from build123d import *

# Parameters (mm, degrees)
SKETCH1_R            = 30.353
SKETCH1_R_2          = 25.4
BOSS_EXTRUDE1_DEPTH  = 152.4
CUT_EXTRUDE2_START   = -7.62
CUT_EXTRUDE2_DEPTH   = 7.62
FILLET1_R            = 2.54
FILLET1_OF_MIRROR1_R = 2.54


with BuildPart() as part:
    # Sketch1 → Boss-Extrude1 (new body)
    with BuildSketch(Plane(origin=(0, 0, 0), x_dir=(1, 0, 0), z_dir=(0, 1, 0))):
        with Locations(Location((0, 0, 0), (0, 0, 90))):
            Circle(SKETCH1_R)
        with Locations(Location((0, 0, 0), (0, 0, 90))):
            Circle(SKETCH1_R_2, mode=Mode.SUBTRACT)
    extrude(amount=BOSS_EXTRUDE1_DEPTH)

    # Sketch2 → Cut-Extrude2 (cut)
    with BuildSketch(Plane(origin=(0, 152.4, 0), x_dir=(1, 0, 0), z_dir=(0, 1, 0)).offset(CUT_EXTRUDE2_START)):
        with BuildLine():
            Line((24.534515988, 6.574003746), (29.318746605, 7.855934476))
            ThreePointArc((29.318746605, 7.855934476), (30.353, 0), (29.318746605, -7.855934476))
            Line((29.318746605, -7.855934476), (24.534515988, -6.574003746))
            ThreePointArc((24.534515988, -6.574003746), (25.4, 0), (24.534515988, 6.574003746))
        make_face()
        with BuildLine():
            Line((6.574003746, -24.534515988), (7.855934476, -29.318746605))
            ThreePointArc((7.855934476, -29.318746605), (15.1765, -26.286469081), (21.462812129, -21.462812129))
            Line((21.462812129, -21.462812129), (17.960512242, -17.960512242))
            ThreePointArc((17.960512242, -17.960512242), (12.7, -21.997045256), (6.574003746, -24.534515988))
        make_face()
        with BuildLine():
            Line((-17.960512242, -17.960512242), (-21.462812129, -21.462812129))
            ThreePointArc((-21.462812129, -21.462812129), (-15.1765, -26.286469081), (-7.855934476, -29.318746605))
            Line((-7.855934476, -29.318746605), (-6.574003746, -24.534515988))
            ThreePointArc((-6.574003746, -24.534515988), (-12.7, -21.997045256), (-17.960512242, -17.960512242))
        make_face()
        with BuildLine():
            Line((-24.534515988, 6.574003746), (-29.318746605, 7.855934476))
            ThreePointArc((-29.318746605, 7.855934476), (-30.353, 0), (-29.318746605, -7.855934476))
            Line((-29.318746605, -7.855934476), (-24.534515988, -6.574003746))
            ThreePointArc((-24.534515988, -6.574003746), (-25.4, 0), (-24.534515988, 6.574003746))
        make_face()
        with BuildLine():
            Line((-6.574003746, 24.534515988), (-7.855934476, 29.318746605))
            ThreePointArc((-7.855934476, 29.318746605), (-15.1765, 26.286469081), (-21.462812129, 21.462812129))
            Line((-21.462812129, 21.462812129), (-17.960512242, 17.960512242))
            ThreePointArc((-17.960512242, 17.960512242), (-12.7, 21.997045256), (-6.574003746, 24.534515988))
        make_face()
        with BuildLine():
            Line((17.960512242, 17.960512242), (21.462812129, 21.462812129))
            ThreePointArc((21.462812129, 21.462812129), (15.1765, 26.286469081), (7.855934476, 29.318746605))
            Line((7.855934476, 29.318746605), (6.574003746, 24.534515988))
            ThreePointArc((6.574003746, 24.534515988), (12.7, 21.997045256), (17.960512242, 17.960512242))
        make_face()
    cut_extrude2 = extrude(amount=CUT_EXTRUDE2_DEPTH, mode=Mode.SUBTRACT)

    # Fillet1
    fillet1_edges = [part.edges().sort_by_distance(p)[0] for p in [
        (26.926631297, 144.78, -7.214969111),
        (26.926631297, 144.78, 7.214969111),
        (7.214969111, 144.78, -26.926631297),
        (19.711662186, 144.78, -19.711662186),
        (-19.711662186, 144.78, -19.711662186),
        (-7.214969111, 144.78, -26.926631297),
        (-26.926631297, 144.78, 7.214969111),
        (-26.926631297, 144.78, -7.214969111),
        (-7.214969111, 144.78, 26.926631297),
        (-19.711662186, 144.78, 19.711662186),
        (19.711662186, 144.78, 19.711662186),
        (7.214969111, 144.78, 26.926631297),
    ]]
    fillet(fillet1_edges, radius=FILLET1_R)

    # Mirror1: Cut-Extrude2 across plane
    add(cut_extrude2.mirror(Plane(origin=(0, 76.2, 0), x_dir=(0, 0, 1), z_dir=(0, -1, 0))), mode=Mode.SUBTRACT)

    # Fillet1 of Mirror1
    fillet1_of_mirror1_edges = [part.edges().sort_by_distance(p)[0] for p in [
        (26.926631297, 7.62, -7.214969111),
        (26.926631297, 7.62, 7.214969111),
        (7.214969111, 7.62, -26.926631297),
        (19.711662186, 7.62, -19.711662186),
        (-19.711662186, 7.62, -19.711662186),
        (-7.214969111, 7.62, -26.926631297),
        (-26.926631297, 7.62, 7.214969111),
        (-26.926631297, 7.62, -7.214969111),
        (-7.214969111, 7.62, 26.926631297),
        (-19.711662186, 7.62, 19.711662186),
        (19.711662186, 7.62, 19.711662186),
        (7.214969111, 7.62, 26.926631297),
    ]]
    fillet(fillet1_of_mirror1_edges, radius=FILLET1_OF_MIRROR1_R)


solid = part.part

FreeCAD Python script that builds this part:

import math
import FreeCAD as App
import Part
import Sketcher
from FreeCAD import Vector
Q = App.Units.Quantity


def edges_at(feature, points):
    """Names of the edges that pass closest to the given points."""
    edges = feature.Shape.Edges
    near = lambda p: min(range(len(edges)), key=lambda i: edges[i].distToShape(Part.Vertex(*p))[0])
    return sorted({f"Edge{near(p) + 1}" for p in points})

doc = App.newDocument("Part")
body = doc.addObject("PartDesign::Body", "Body")

sketch1 = doc.addObject("Sketcher::SketchObject", "Sketch")
body.addObject(sketch1)
sketch1.AttachmentSupport = (doc.XZ_Plane, [""])
sketch1.MapMode = "FlatFace"
sketch1.addGeometry([
    Part.Circle(Vector(0, 0, 0), Vector(0, 0, 1), 30.353),
    Part.Circle(Vector(0, 0, 0), Vector(0, 0, 1), 25.4),
], False)
sketch1.addConstraint([
    Sketcher.Constraint("Coincident", 0, 3, -1, 1),
    Sketcher.Constraint("Coincident", 1, 3, -1, 1),
    Sketcher.Constraint("Diameter", 1, Q("2 in")),
    Sketcher.Constraint("Diameter", 0, Q("2.39 in")),
])
pad1 = doc.addObject("PartDesign::Pad", "Pad")
body.addObject(pad1)
pad1.Profile = sketch1
pad1.Length = Q("6 in")
pad1.Reversed = True

sketch2 = doc.addObject("Sketcher::SketchObject", "Sketch001")
body.addObject(sketch2)
sketch2.AttachmentSupport = (doc.XZ_Plane, [""])
sketch2.MapMode = "FlatFace"
sketch2.AttachmentOffset = App.Placement(Vector(0, 0, -5.7 * 25.4), App.Rotation())
sketch2.addGeometry([
    Part.LineSegment(Vector(29.318747, -7.855934, 0), Vector(24.534516, -6.574004, 0)),
    Part.ArcOfCircle(Part.Circle(Vector(0, 0, 0), Vector(0, 0, 1), 25.4), math.radians(-15), math.radians(15)),
    Part.LineSegment(Vector(24.534516, 6.574004, 0), Vector(29.318747, 7.855934, 0)),
    Part.ArcOfCircle(Part.Circle(Vector(0, 0, 0), Vector(0, 0, 1), 30.353), math.radians(-15), math.radians(15)),
    Part.LineSegment(Vector(6.574004, 24.534516, 0), Vector(7.855934, 29.318747, 0)),
    Part.ArcOfCircle(Part.Circle(Vector(0, 0, 0), Vector(0, 0, 1), 30.353), math.radians(45), math.radians(75)),
    Part.LineSegment(Vector(21.462812, 21.462812, 0), Vector(17.960512, 17.960512, 0)),
    Part.ArcOfCircle(Part.Circle(Vector(0, 0, 0), Vector(0, 0, 1), 25.4), math.radians(45), math.radians(75)),
    Part.LineSegment(Vector(-17.960512, 17.960512, 0), Vector(-21.462812, 21.462812, 0)),
    Part.ArcOfCircle(Part.Circle(Vector(0, 0, 0), Vector(0, 0, 1), 30.353), math.radians(105), math.radians(135)),
    Part.LineSegment(Vector(-7.855934, 29.318747, 0), Vector(-6.574004, 24.534516, 0)),
    Part.ArcOfCircle(Part.Circle(Vector(0, 0, 0), Vector(0, 0, 1), 25.4), math.radians(105), math.radians(135)),
    Part.LineSegment(Vector(-24.534516, -6.574004, 0), Vector(-29.318747, -7.855934, 0)),
    Part.ArcOfCircle(Part.Circle(Vector(0, 0, 0), Vector(0, 0, 1), 30.353), math.radians(165), math.radians(195)),
    Part.LineSegment(Vector(-29.318747, 7.855934, 0), Vector(-24.534516, 6.574004, 0)),
    Part.ArcOfCircle(Part.Circle(Vector(0, 0, 0), Vector(0, 0, 1), 25.4), math.radians(165), math.radians(195)),
    Part.LineSegment(Vector(-6.574004, -24.534516, 0), Vector(-7.855934, -29.318747, 0)),
    Part.ArcOfCircle(Part.Circle(Vector(0, 0, 0), Vector(0, 0, 1), 30.353), math.radians(-135), math.radians(-105)),
    Part.LineSegment(Vector(-21.462812, -21.462812, 0), Vector(-17.960512, -17.960512, 0)),
    Part.ArcOfCircle(Part.Circle(Vector(0, 0, 0), Vector(0, 0, 1), 25.4), math.radians(-135), math.radians(-105)),
    Part.LineSegment(Vector(17.960512, -17.960512, 0), Vector(21.462812, -21.462812, 0)),
    Part.ArcOfCircle(Part.Circle(Vector(0, 0, 0), Vector(0, 0, 1), 30.353), math.radians(-75), math.radians(-45)),
    Part.LineSegment(Vector(7.855934, -29.318747, 0), Vector(6.574004, -24.534516, 0)),
    Part.ArcOfCircle(Part.Circle(Vector(0, 0, 0), Vector(0, 0, 1), 25.4), math.radians(-75), math.radians(-45)),
], False)
sketch2.addConstraint([
    Sketcher.Constraint("Coincident", 0, 2, 1, 1),
    Sketcher.Constraint("Coincident", 1, 2, 2, 1),
    Sketcher.Constraint("Coincident", 2, 2, 3, 2),
    Sketcher.Constraint("Coincident", 3, 1, 0, 1),
    Sketcher.Constraint("Coincident", 4, 2, 5, 2),
    Sketcher.Constraint("Coincident", 5, 1, 6, 1),
    Sketcher.Constraint("Coincident", 6, 2, 7, 1),
    Sketcher.Constraint("Coincident", 7, 2, 4, 1),
    Sketcher.Constraint("Coincident", 8, 2, 9, 2),
    Sketcher.Constraint("Coincident", 9, 1, 10, 1),
    Sketcher.Constraint("Coincident", 10, 2, 11, 1),
    Sketcher.Constraint("Coincident", 11, 2, 8, 1),
    Sketcher.Constraint("Coincident", 12, 2, 13, 2),
    Sketcher.Constraint("Coincident", 13, 1, 14, 1),
    Sketcher.Constraint("Coincident", 14, 2, 15, 1),
    Sketcher.Constraint("Coincident", 15, 2, 12, 1),
    Sketcher.Constraint("Coincident", 16, 2, 17, 2),
    Sketcher.Constraint("Coincident", 17, 1, 18, 1),
    Sketcher.Constraint("Coincident", 18, 2, 19, 1),
    Sketcher.Constraint("Coincident", 19, 2, 16, 1),
    Sketcher.Constraint("Coincident", 20, 2, 21, 2),
    Sketcher.Constraint("Coincident", 21, 1, 22, 1),
    Sketcher.Constraint("Coincident", 22, 2, 23, 1),
    Sketcher.Constraint("Coincident", 23, 2, 20, 1),
    Sketcher.Constraint("Coincident", 1, 3, -1, 1),
    Sketcher.Constraint("Coincident", 3, 3, -1, 1),
    Sketcher.Constraint("Coincident", 5, 3, -1, 1),
    Sketcher.Constraint("Coincident", 7, 3, -1, 1),
    Sketcher.Constraint("Coincident", 9, 3, -1, 1),
    Sketcher.Constraint("Coincident", 11, 3, -1, 1),
    Sketcher.Constraint("Coincident", 13, 3, -1, 1),
    Sketcher.Constraint("Coincident", 15, 3, -1, 1),
    Sketcher.Constraint("Coincident", 17, 3, -1, 1),
    Sketcher.Constraint("Coincident", 19, 3, -1, 1),
    Sketcher.Constraint("Coincident", 21, 3, -1, 1),
    Sketcher.Constraint("Coincident", 23, 3, -1, 1),
    Sketcher.Constraint("Equal", 3, 5),
    Sketcher.Constraint("Equal", 1, 7),
    Sketcher.Constraint("Equal", 5, 9),
    Sketcher.Constraint("Equal", 7, 11),
    Sketcher.Constraint("Equal", 9, 13),
    Sketcher.Constraint("Equal", 11, 15),
    Sketcher.Constraint("Equal", 13, 17),
    Sketcher.Constraint("Equal", 15, 19),
    Sketcher.Constraint("Equal", 17, 21),
    Sketcher.Constraint("Equal", 19, 23),
    Sketcher.Constraint("Perpendicular", 0, 4),
    Sketcher.Constraint("Perpendicular", 6, 8),
    Sketcher.Constraint("Perpendicular", 2, 10),
    Sketcher.Constraint("Perpendicular", 10, 12),
    Sketcher.Constraint("Perpendicular", 4, 14),
    Sketcher.Constraint("Perpendicular", 14, 16),
    Sketcher.Constraint("Perpendicular", 8, 18),
    Sketcher.Constraint("Perpendicular", 18, 20),
    Sketcher.Constraint("Perpendicular", 12, 22),
    Sketcher.Constraint("Horizontal", 5, 1, 8, 2),
    Sketcher.Constraint("Horizontal", 4, 2, 9, 1),
    Sketcher.Constraint("Horizontal", 7, 2, 10, 2),
    Sketcher.Constraint("Horizontal", 6, 2, 11, 2),
    Sketcher.Constraint("Horizontal", 3, 1, 12, 2),
    Sketcher.Constraint("Horizontal", 2, 2, 13, 1),
    Sketcher.Constraint("Horizontal", 17, 1, 20, 2),
    Sketcher.Constraint("Horizontal", 16, 2, 21, 1),
    Sketcher.Constraint("Vertical", 0, 2, 1, 2),
    Sketcher.Constraint("Vertical", 9, 1, 16, 2),
    Sketcher.Constraint("Vertical", 8, 2, 17, 1),
    Sketcher.Constraint("Radius", 1, Q("1 in")),
    Sketcher.Constraint("Angle", 0, Q("165 deg")),
    Sketcher.Constraint("Radius", 3, Q("1.195 in")),
    Sketcher.Constraint("DistanceY", 0, 2, 2, 2, 14.429938),
    Sketcher.Constraint("DistanceX", 4, 2, 1, 2, 16.678582),
    Sketcher.Constraint("DistanceY", 1, 2, 5, 1, 14.888808),
])
pocket1 = doc.addObject("PartDesign::Pocket", "Pocket")
body.addObject(pocket1)
pocket1.Profile = sketch2
pocket1.Length = Q("0.3 in")
doc.recompute()

fillet = doc.addObject("PartDesign::Fillet", "Fillet")
body.addObject(fillet)
fillet.Base = (pocket1, edges_at(pocket1, [
    (26.927, 144.78, -7.215),
    (26.927, 144.78, 7.215),
    (7.215, 144.78, -26.927),
    (19.712, 144.78, -19.712),
    (-19.712, 144.78, -19.712),
    (-7.215, 144.78, -26.927),
    (-26.927, 144.78, 7.215),
    (-26.927, 144.78, -7.215),
    (-7.215, 144.78, 26.927),
    (-19.712, 144.78, 19.712),
    (19.712, 144.78, 19.712),
    (7.215, 144.78, 26.927),
]))
fillet.Radius = Q("0.1 in")
doc.recompute()

datumplane = doc.addObject("PartDesign::Plane", "DatumPlane")
body.addObject(datumplane)
datumplane.AttachmentSupport = (doc.XZ_Plane, [""])
datumplane.MapMode = "FlatFace"
datumplane.AttachmentOffset = App.Placement(Vector(0, 0, -3 * 25.4), App.Rotation())
mirrored = doc.addObject("PartDesign::Mirrored", "Mirrored")
body.addObject(mirrored)
mirrored.Originals = [pocket1]
mirrored.MirrorPlane = (datumplane, [""])
body.Tip = mirrored
doc.recompute()

fillet2 = doc.addObject("PartDesign::Fillet", "Fillet001")
body.addObject(fillet2)
fillet2.Base = (mirrored, edges_at(mirrored, [
    (26.927, 7.62, -7.215),
    (26.927, 7.62, 7.215),
    (7.215, 7.62, -26.927),
    (19.712, 7.62, -19.712),
    (-19.712, 7.62, -19.712),
    (-7.215, 7.62, -26.927),
    (-26.927, 7.62, 7.215),
    (-26.927, 7.62, -7.215),
    (-7.215, 7.62, 26.927),
    (-19.712, 7.62, 19.712),
    (19.712, 7.62, 19.712),
    (7.215, 7.62, 26.927),
]))
fillet2.Radius = Q("0.1 in")

doc.recompute()
